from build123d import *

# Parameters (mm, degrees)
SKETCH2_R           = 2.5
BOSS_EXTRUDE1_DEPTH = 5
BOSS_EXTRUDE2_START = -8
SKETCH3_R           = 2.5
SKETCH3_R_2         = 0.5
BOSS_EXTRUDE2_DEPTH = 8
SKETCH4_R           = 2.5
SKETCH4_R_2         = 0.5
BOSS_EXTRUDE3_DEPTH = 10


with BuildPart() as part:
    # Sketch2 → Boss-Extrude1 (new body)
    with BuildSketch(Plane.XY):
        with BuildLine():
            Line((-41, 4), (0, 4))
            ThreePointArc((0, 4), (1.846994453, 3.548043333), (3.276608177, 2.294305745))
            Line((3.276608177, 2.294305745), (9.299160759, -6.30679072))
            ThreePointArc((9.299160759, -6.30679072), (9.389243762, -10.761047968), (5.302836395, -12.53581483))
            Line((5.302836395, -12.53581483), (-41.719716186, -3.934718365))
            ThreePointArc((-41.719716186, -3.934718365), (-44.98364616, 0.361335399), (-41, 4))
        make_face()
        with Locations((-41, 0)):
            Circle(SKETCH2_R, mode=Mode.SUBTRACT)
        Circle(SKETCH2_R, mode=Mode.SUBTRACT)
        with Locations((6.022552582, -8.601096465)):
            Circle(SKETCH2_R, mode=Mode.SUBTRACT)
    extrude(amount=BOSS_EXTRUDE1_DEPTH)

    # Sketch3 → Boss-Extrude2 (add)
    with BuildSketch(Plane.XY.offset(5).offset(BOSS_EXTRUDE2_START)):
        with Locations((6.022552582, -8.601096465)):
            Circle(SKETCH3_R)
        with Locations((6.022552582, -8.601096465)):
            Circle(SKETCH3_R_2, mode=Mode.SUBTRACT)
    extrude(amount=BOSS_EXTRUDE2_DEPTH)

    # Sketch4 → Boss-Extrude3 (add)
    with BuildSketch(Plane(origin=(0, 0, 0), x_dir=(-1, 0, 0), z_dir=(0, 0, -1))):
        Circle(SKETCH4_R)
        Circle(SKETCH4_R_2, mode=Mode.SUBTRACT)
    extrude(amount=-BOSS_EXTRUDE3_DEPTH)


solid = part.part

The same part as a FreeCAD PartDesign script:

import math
import FreeCAD as App
import Part
import Sketcher

V = App.Vector
Q = App.Units.Quantity

doc = App.newDocument("Part")
body = doc.addObject("PartDesign::Body", "Body")

# Sketch on XY plane
sketch1 = body.newObject("Sketcher::SketchObject", "Sketch")
sketch1.AttachmentSupport = (doc.getObject("XY_Plane"), [""])
sketch1.MapMode = "FlatFace"
sketch1.addGeometry(Part.LineSegment(V(0, 4, 0), V(-41, 4, 0)), False)
sketch1.addGeometry(Part.ArcOfCircle(Part.Circle(V(-41, 0, 0), V(0, 0, 1), 4), math.radians(90), math.radians(259.634373)), False)
sketch1.addGeometry(Part.LineSegment(V(-41.719716, -3.934718, 0), V(5.302836, -12.535815, 0)), False)
sketch1.addGeometry(Part.ArcOfCircle(Part.Circle(V(6.022553, -8.601096, 0), V(0, 0, 1), 4), math.radians(-100.365627), math.radians(35)), False)
sketch1.addGeometry(Part.LineSegment(V(9.299161, -6.306791, 0), V(3.276608, 2.294306, 0)), False)
sketch1.addGeometry(Part.ArcOfCircle(Part.Circle(V(0, 0, 0), V(0, 0, 1), 4), math.radians(35), math.radians(90)), False)
sketch1.addGeometry(Part.Circle(V(6.022553, -8.601096, 0), V(0, 0, 1), 2.5), False)
sketch1.addGeometry(Part.Circle(V(0, 0, 0), V(0, 0, 1), 2.5), False)
sketch1.addGeometry(Part.Circle(V(-41, 0, 0), V(0, 0, 1), 2.5), False)
sketch1.addConstraint(Sketcher.Constraint("Tangent", 0, 2, 1, 1))
sketch1.addConstraint(Sketcher.Constraint("Tangent", 1, 2, 2, 1))
sketch1.addConstraint(Sketcher.Constraint("Tangent", 2, 2, 3, 1))
sketch1.addConstraint(Sketcher.Constraint("Tangent", 3, 2, 4, 1))
sketch1.addConstraint(Sketcher.Constraint("Tangent", 4, 2, 5, 1))
sketch1.addConstraint(Sketcher.Constraint("Tangent", 5, 2, 0, 1))
sketch1.addConstraint(Sketcher.Constraint("Horizontal", 0))
sketch1.addConstraint(Sketcher.Constraint("Coincident", 5, 3, -1, 1))
sketch1.addConstraint(Sketcher.Constraint("Coincident", 7, 3, -1, 1))
sketch1.addConstraint(Sketcher.Constraint("Coincident", 6, 3, 3, 3))
sketch1.addConstraint(Sketcher.Constraint("Coincident", 8, 3, 1, 3))
sketch1.addConstraint(Sketcher.Constraint("Equal", 1, 3))
sketch1.addConstraint(Sketcher.Constraint("Equal", 3, 5))
sketch1.addConstraint(Sketcher.Constraint("Equal", 6, 7))
sketch1.addConstraint(Sketcher.Constraint("Equal", 7, 8))
sketch1.addConstraint(Sketcher.Constraint("Diameter", 6, Q("5 mm")))
sketch1.addConstraint(Sketcher.Constraint("Radius", 1, Q("4 mm")))
sketch1.addConstraint(Sketcher.Constraint("DistanceX", 0, 2, 0, 1, Q("41 mm")))
sketch1.addConstraint(Sketcher.Constraint("Angle", 4, Q("125 deg")))
sketch1.addConstraint(Sketcher.Constraint("Distance", 4, Q("10.5 mm")))
pad1 = body.newObject("PartDesign::Pad", "Pad")
pad1.Profile = sketch1
pad1.Length = 5

# Sketch on XY plane
sketch2 = body.newObject("Sketcher::SketchObject", "Sketch001")
sketch2.AttachmentSupport = (doc.getObject("XY_Plane"), [""])
sketch2.MapMode = "FlatFace"
sketch2.AttachmentOffset = App.Placement(V(0, 0, -3), App.Rotation())
sketch2.addGeometry(Part.Circle(V(6.022553, -8.601096, 0), V(0, 0, 1), 2.5), False)
sketch2.addGeometry(Part.Circle(V(6.022553, -8.601096, 0), V(0, 0, 1), 0.5), False)
sketch2.addConstraint(Sketcher.Constraint("Coincident", 1, 3, 0, 3))
sketch2.addConstraint(Sketcher.Constraint("Diameter", 0, Q("5 mm")))
sketch2.addConstraint(Sketcher.Constraint("Diameter", 1, Q("1 mm")))
sketch2.addConstraint(Sketcher.Constraint("DistanceX", -1, 1, 0, 3, Q("6.022553 mm")))
sketch2.addConstraint(Sketcher.Constraint("DistanceY", 0, 3, -1, 1, Q("8.601096 mm")))
pad2 = body.newObject("PartDesign::Pad", "Pad001")
pad2.Profile = sketch2
pad2.Length = 8

# Sketch on XY plane
sketch3 = body.newObject("Sketcher::SketchObject", "Sketch002")
sketch3.AttachmentSupport = (doc.getObject("XY_Plane"), [""])
sketch3.MapMode = "FlatFace"
sketch3.addGeometry(Part.Circle(V(0, 0, 0), V(0, 0, 1), 2.5), False)
sketch3.addGeometry(Part.Circle(V(0, 0, 0), V(0, 0, 1), 0.5), False)
sketch3.addConstraint(Sketcher.Constraint("Coincident", 0, 3, -1, 1))
sketch3.addConstraint(Sketcher.Constraint("Coincident", 1, 3, -1, 1))
sketch3.addConstraint(Sketcher.Constraint("Diameter", 0, Q("5 mm")))
sketch3.addConstraint(Sketcher.Constraint("Diameter", 1, Q("1 mm")))
pad3 = body.newObject("PartDesign::Pad", "Pad002")
pad3.Profile = sketch3
pad3.Length = 10

doc.recompute()
